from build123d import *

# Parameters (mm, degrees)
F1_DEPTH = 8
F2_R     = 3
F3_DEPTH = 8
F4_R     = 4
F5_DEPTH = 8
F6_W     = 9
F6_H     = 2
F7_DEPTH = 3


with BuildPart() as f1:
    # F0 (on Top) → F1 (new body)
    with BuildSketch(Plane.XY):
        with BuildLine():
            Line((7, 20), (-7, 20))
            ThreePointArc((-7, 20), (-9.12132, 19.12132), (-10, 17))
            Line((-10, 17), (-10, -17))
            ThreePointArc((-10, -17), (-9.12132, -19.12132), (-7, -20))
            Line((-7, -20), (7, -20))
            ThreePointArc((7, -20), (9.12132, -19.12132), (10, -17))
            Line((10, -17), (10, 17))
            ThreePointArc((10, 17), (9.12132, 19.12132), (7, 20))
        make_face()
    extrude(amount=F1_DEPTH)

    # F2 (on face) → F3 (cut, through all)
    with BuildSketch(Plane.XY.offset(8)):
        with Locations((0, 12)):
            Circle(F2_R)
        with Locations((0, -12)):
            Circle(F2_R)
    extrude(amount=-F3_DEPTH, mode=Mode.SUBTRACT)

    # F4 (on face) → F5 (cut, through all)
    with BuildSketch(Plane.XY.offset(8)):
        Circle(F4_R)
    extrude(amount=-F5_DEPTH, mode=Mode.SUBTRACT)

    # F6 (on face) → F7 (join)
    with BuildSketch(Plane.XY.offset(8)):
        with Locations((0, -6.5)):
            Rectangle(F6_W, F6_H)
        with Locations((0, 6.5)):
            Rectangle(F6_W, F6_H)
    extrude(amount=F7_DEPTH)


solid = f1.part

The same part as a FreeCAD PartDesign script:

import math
import FreeCAD as App
import Part
import Sketcher
from FreeCAD import Vector

doc = App.newDocument("Part")
body = doc.addObject("PartDesign::Body", "Body")

# Sketch on XY plane
sketch1 = body.newObject("Sketcher::SketchObject", "Sketch")
sketch1.AttachmentSupport = (doc.getObject("XY_Plane"), [""])
sketch1.MapMode = "FlatFace"
sketch1.addGeometry(Part.LineSegment(Vector(7, 20, 0), Vector(-7, 20, 0)), False)
sketch1.addGeometry(Part.ArcOfCircle(Part.Circle(Vector(-6.999999, 16.999999, 0), Vector(0, 0, 1), 3.000001), math.radians(90.000022), math.radians(179.999978)), False)
sketch1.addGeometry(Part.LineSegment(Vector(-10, 17, 0), Vector(-10, -17, 0)), False)
sketch1.addGeometry(Part.ArcOfCircle(Part.Circle(Vector(-6.999999, -16.999999, 0), Vector(0, 0, 1), 3.000001), math.radians(-179.999978), math.radians(-90.000022)), False)
sketch1.addGeometry(Part.LineSegment(Vector(-7, -20, 0), Vector(7, -20, 0)), False)
sketch1.addGeometry(Part.ArcOfCircle(Part.Circle(Vector(6.999999, -16.999999, 0), Vector(0, 0, 1), 3.000001), math.radians(-89.999978), math.radians(-0.000022)), False)
sketch1.addGeometry(Part.LineSegment(Vector(10, -17, 0), Vector(10, 17, 0)), False)
sketch1.addGeometry(Part.ArcOfCircle(Part.Circle(Vector(6.999999, 16.999999, 0), Vector(0, 0, 1), 3.000001), math.radians(0.000022), math.radians(89.999978)), False)
sketch1.addConstraint(Sketcher.Constraint("Tangent", 0, 2, 1, 1))
sketch1.addConstraint(Sketcher.Constraint("Tangent", 1, 2, 2, 1))
sketch1.addConstraint(Sketcher.Constraint("Tangent", 2, 2, 3, 1))
sketch1.addConstraint(Sketcher.Constraint("Tangent", 3, 2, 4, 1))
sketch1.addConstraint(Sketcher.Constraint("Tangent", 4, 2, 5, 1))
sketch1.addConstraint(Sketcher.Constraint("Tangent", 5, 2, 6, 1))
sketch1.addConstraint(Sketcher.Constraint("Tangent", 6, 2, 7, 1))
sketch1.addConstraint(Sketcher.Constraint("Tangent", 7, 2, 0, 1))
sketch1.addConstraint(Sketcher.Constraint("Horizontal", 0))
sketch1.addConstraint(Sketcher.Constraint("Vertical", 2))
sketch1.addConstraint(Sketcher.Constraint("Horizontal", 4))
sketch1.addConstraint(Sketcher.Constraint("Vertical", 6))
sketch1.addConstraint(Sketcher.Constraint("Equal", 1, 3))
sketch1.addConstraint(Sketcher.Constraint("Equal", 3, 5))
sketch1.addConstraint(Sketcher.Constraint("Equal", 5, 7))
sketch1.addConstraint(Sketcher.Constraint("Symmetric", 1, 3, 5, 3, -1, 1))
sketch1.addConstraint(Sketcher.Constraint("Radius", 1, 3.000001))
sketch1.addConstraint(Sketcher.Constraint("DistanceX", 0, 2, 0, 1, 14.0))
sketch1.addConstraint(Sketcher.Constraint("DistanceY", 2, 2, 2, 1, 34.0))
pad1 = body.newObject("PartDesign::Pad", "Pad")
pad1.Profile = sketch1
pad1.Length = 8

# Sketch on XY plane
sketch2 = body.newObject("Sketcher::SketchObject", "Sketch001")
sketch2.AttachmentSupport = (doc.getObject("XY_Plane"), [""])
sketch2.MapMode = "FlatFace"
sketch2.AttachmentOffset = App.Placement(Vector(0, 0, 8), App.Rotation())
sketch2.addGeometry(Part.Circle(Vector(0, 12, 0), Vector(0, 0, 1), 3), False)
sketch2.addGeometry(Part.Circle(Vector(0, -12, 0), Vector(0, 0, 1), 3), False)
sketch2.addConstraint(Sketcher.Constraint("Equal", 0, 1))
sketch2.addConstraint(Sketcher.Constraint("Symmetric", 0, 3, 1, 3, -1, 1))
sketch2.addConstraint(Sketcher.Constraint("PointOnObject", 0, 3, -2))
sketch2.addConstraint(Sketcher.Constraint("Diameter", 0, 6.0))
sketch2.addConstraint(Sketcher.Constraint("DistanceY", -1, 1, 0, 3, 12.0))
pocket1 = body.newObject("PartDesign::Pocket", "Pocket")
pocket1.Profile = sketch2
pocket1.Type = "ThroughAll"

# Sketch on XY plane
sketch3 = body.newObject("Sketcher::SketchObject", "Sketch002")
sketch3.AttachmentSupport = (doc.getObject("XY_Plane"), [""])
sketch3.MapMode = "FlatFace"
sketch3.AttachmentOffset = App.Placement(Vector(0, 0, 8), App.Rotation())
sketch3.addGeometry(Part.Circle(Vector(0, 0, 0), Vector(0, 0, 1), 4), False)
sketch3.addConstraint(Sketcher.Constraint("Coincident", 0, 3, -1, 1))
sketch3.addConstraint(Sketcher.Constraint("Diameter", 0, 8.0))
pocket2 = body.newObject("PartDesign::Pocket", "Pocket001")
pocket2.Profile = sketch3
pocket2.Type = "ThroughAll"

# Sketch on XY plane
sketch4 = body.newObject("Sketcher::SketchObject", "Sketch003")
sketch4.AttachmentSupport = (doc.getObject("XY_Plane"), [""])
sketch4.MapMode = "FlatFace"
sketch4.AttachmentOffset = App.Placement(Vector(0, 0, 8), App.Rotation())
sketch4.addGeometry(Part.LineSegment(Vector(-4.5, -5.5, 0), Vector(-4.5, -7.5, 0)), False)
sketch4.addGeometry(Part.LineSegment(Vector(-4.5, -7.5, 0), Vector(4.5, -7.5, 0)), False)
sketch4.addGeometry(Part.LineSegment(Vector(4.5, -7.5, 0), Vector(4.5, -5.5, 0)), False)
sketch4.addGeometry(Part.LineSegment(Vector(4.5, -5.5, 0), Vector(-4.5, -5.5, 0)), False)
sketch4.addGeometry(Part.LineSegment(Vector(-4.5, 7.5, 0), Vector(-4.5, 5.5, 0)), False)
sketch4.addGeometry(Part.LineSegment(Vector(-4.5, 5.5, 0), Vector(4.5, 5.5, 0)), False)
sketch4.addGeometry(Part.LineSegment(Vector(4.5, 5.5, 0), Vector(4.5, 7.5, 0)), False)
sketch4.addGeometry(Part.LineSegment(Vector(4.5, 7.5, 0), Vector(-4.5, 7.5, 0)), False)
sketch4.addConstraint(Sketcher.Constraint("Coincident", 0, 2, 1, 1))
sketch4.addConstraint(Sketcher.Constraint("Coincident", 1, 2, 2, 1))
sketch4.addConstraint(Sketcher.Constraint("Coincident", 2, 2, 3, 1))
sketch4.addConstraint(Sketcher.Constraint("Coincident", 3, 2, 0, 1))
sketch4.addConstraint(Sketcher.Constraint("Coincident", 4, 2, 5, 1))
sketch4.addConstraint(Sketcher.Constraint("Coincident", 5, 2, 6, 1))
sketch4.addConstraint(Sketcher.Constraint("Coincident", 6, 2, 7, 1))
sketch4.addConstraint(Sketcher.Constraint("Coincident", 7, 2, 4, 1))
sketch4.addConstraint(Sketcher.Constraint("Vertical", 0))
sketch4.addConstraint(Sketcher.Constraint("Horizontal", 1))
sketch4.addConstraint(Sketcher.Constraint("Vertical", 2))
sketch4.addConstraint(Sketcher.Constraint("Horizontal", 3))
sketch4.addConstraint(Sketcher.Constraint("Vertical", 4))
sketch4.addConstraint(Sketcher.Constraint("Horizontal", 5))
sketch4.addConstraint(Sketcher.Constraint("Vertical", 6))
sketch4.addConstraint(Sketcher.Constraint("Horizontal", 7))
sketch4.addConstraint(Sketcher.Constraint("Symmetric", 2, 2, 4, 2, -1, 1))
sketch4.addConstraint(Sketcher.Constraint("Symmetric", 0, 2, 6, 2, -1, 1))
sketch4.addConstraint(Sketcher.Constraint("Vertical", 3, 2, 4, 2))
sketch4.addConstraint(Sketcher.Constraint("DistanceX", 1, 1, 1, 2, 9.0))
sketch4.addConstraint(Sketcher.Constraint("DistanceY", 0, 2, 0, 1, 2.0))
sketch4.addConstraint(Sketcher.Constraint("DistanceY", 3, 2, 4, 2, 11.0))
pad2 = body.newObject("PartDesign::Pad", "Pad001")
pad2.Profile = sketch4
pad2.Length = 3

doc.recompute()
